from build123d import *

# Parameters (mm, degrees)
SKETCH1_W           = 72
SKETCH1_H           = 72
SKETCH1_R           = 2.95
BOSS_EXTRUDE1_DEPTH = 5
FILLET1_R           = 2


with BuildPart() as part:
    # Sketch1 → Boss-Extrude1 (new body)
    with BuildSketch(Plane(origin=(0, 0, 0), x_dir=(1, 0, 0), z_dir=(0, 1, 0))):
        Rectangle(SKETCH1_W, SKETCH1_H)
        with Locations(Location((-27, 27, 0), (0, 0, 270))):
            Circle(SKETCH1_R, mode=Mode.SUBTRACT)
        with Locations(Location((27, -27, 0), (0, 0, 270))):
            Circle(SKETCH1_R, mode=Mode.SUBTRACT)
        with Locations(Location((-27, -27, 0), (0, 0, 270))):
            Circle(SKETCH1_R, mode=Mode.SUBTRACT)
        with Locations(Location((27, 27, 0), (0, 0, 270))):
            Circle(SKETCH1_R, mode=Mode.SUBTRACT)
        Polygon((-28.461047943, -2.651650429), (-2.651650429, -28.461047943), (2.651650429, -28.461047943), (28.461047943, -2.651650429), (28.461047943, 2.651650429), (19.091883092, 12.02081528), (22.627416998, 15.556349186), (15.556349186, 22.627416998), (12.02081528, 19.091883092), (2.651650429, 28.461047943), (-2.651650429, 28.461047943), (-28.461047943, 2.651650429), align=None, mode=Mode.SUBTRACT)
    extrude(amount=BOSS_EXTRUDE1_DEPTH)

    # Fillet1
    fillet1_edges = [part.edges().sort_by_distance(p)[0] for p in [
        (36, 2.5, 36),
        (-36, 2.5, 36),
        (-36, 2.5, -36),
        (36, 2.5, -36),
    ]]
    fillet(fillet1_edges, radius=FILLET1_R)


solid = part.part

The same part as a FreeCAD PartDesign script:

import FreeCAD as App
import Part
import Sketcher

V = App.Vector


def edges_at(feature, points):
    """Names of the edges that pass closest to the given points."""
    edges = feature.Shape.Edges
    near = lambda p: min(range(len(edges)), key=lambda i: edges[i].distToShape(Part.Vertex(*p))[0])
    return sorted({f"Edge{near(p) + 1}" for p in points})


def add_polygon(sketch, points):
    """Adds a closed chain of lines whose ends are joined by coincident constraints."""
    first, n = sketch.GeometryCount, len(points)
    for a, b in zip(points, points[1:] + points[:1]):
        sketch.addGeometry(Part.LineSegment(App.Vector(*a, 0), App.Vector(*b, 0)), False)
    for i in range(n):
        sketch.addConstraint(Sketcher.Constraint("Coincident", first + i, 2, first + (i + 1) % n, 1))

doc = App.newDocument("Part")
params = doc.addObject("Spreadsheet::Sheet", "Params")
for row, (alias, value) in enumerate([
    ("sketch1_diameter", "5.9 mm"),
    ("sketch1_width", "72 mm"),
    ("sketch1_length", "5 mm"),
    ("sketch1_length2", "10 mm"),
    ("sketch1_length3", "36.5 mm"),
    ("pad1_length", "5 mm"),
    ("fillet_radius", "2 mm"),
], start=1):
    params.set(f"A{row}", alias)
    params.set(f"B{row}", "=" + value)
    params.setAlias(f"B{row}", alias)

body = doc.addObject("PartDesign::Body", "Body")

sketch1 = body.newObject("Sketcher::SketchObject", "Sketch")
sketch1.AttachmentSupport = (doc.getObject("XZ_Plane"), [""])
sketch1.MapMode = "FlatFace"
add_polygon(sketch1, [(-36, -36), (-36, 36), (36, 36), (36, -36)])
sketch1.addGeometry(Part.Circle(V(-27, 27, 0), V(0, 0, 1), 3), False)
add_polygon(sketch1, [(-2.7, 28.5), (-28.5, 2.7), (-28.5, -2.7), (-2.7, -28.5), (2.7, -28.5), (12, -19.1), (15.6, -22.6), (22.6, -15.6), (19.1, -12), (28.5, -2.7), (28.5, 2.7), (2.7, 28.5)])
sketch1.addGeometry(Part.Circle(V(27, 27, 0), V(0, 0, 1), 3), False)
sketch1.addGeometry(Part.Circle(V(-27, -27, 0), V(0, 0, 1), 3), False)
sketch1.addGeometry(Part.Circle(V(27, -27, 0), V(0, 0, 1), 3), False)
sketch1.addConstraint(Sketcher.Constraint("Vertical", 0))
sketch1.addConstraint(Sketcher.Constraint("Horizontal", 1))
sketch1.addConstraint(Sketcher.Constraint("Vertical", 2))
sketch1.addConstraint(Sketcher.Constraint("Horizontal", 3))
sketch1.addConstraint(Sketcher.Constraint("Vertical", 6))
sketch1.addConstraint(Sketcher.Constraint("Horizontal", 8))
sketch1.addConstraint(Sketcher.Constraint("Vertical", 14))
sketch1.addConstraint(Sketcher.Constraint("Horizontal", 16))
sketch1.addConstraint(Sketcher.Constraint("Equal", 4, 17))
sketch1.addConstraint(Sketcher.Constraint("Equal", 17, 18))
sketch1.addConstraint(Sketcher.Constraint("Equal", 18, 19))
sketch1.addConstraint(Sketcher.Constraint("Symmetric", 17, 3, 18, 3, -1, 1))
sketch1.addConstraint(Sketcher.Constraint("Symmetric", 4, 3, 19, 3, -1, 1))
sketch1.addConstraint(Sketcher.Constraint("Symmetric", 0, 2, 2, 2, -1, 1))
sketch1.addConstraint(Sketcher.Constraint("Symmetric", 5, 2, 13, 2, -1, 1))
sketch1.addConstraint(Sketcher.Constraint("Symmetric", 7, 2, 15, 2, -1, 1))
sketch1.addConstraint(Sketcher.Constraint("Symmetric", 4, 3, 17, 3, -2))
sketch1.addConstraint(Sketcher.Constraint("Perpendicular", 5, 7))
sketch1.addConstraint(Sketcher.Constraint("Perpendicular", 7, 9))
sketch1.addConstraint(Sketcher.Constraint("Perpendicular", 9, 10))
sketch1.addConstraint(Sketcher.Constraint("Perpendicular", 10, 11))
sketch1.addConstraint(Sketcher.Constraint("Perpendicular", 11, 12))
sketch1.addConstraint(Sketcher.Constraint("Perpendicular", 12, 13))
sketch1.addConstraint(Sketcher.Constraint("Perpendicular", 13, 15))
sketch1.addConstraint(Sketcher.Constraint("Horizontal", 6, 2, 13, 2))
sketch1.addConstraint(Sketcher.Constraint("Vertical", 8, 2, 15, 2))
sketch1.addConstraint(Sketcher.Constraint("Vertical", 7, 2, 16, 2))
sketch1.addConstraint(Sketcher.Constraint("Equal", 3, 0))
sketch1.addConstraint(Sketcher.Constraint("Equal", 16, 6))
sketch1.addConstraint(Sketcher.Constraint("Equal", 9, 13))
sketch1.addConstraint(Sketcher.Constraint("Diameter", 4, 5.9))
sketch1.addConstraint(Sketcher.Constraint("DistanceX", 1, 1, 1, 2, 72.0))
sketch1.addConstraint(Sketcher.Constraint("Distance", 10, 5.0))
sketch1.addConstraint(Sketcher.Constraint("Distance", 11, 10.0))
sketch1.addConstraint(Sketcher.Constraint("DistanceX", 4, 3, -1, 1, 27.0))
sketch1.addConstraint(Sketcher.Constraint("DistanceY", -1, 1, 4, 3, 27.0))
sketch1.addConstraint(Sketcher.Constraint("Distance", 5, 36.5))
sketch1.addConstraint(Sketcher.Constraint("DistanceX", 8, 1, 8, 2, 5.303301))
sketch1.setExpression("Constraints[46]", "Params.sketch1_diameter")
sketch1.setExpression("Constraints[47]", "Params.sketch1_width")
sketch1.setExpression("Constraints[48]", "Params.sketch1_length")
sketch1.setExpression("Constraints[49]", "Params.sketch1_length2")
sketch1.setExpression("Constraints[52]", "Params.sketch1_length3")
pad1 = body.newObject("PartDesign::Pad", "Pad")
pad1.Profile = sketch1
pad1.setExpression("Length", "Params.pad1_length")
pad1.Reversed = True
doc.recompute()

fillet = body.newObject("PartDesign::Fillet", "Fillet")
fillet.Base = (pad1, edges_at(pad1, [
    (36, 2.5, 36),
    (-36, 2.5, 36),
    (-36, 2.5, -36),
    (36, 2.5, -36),
]))
fillet.setExpression("Radius", "Params.fillet_radius")

doc.recompute()
